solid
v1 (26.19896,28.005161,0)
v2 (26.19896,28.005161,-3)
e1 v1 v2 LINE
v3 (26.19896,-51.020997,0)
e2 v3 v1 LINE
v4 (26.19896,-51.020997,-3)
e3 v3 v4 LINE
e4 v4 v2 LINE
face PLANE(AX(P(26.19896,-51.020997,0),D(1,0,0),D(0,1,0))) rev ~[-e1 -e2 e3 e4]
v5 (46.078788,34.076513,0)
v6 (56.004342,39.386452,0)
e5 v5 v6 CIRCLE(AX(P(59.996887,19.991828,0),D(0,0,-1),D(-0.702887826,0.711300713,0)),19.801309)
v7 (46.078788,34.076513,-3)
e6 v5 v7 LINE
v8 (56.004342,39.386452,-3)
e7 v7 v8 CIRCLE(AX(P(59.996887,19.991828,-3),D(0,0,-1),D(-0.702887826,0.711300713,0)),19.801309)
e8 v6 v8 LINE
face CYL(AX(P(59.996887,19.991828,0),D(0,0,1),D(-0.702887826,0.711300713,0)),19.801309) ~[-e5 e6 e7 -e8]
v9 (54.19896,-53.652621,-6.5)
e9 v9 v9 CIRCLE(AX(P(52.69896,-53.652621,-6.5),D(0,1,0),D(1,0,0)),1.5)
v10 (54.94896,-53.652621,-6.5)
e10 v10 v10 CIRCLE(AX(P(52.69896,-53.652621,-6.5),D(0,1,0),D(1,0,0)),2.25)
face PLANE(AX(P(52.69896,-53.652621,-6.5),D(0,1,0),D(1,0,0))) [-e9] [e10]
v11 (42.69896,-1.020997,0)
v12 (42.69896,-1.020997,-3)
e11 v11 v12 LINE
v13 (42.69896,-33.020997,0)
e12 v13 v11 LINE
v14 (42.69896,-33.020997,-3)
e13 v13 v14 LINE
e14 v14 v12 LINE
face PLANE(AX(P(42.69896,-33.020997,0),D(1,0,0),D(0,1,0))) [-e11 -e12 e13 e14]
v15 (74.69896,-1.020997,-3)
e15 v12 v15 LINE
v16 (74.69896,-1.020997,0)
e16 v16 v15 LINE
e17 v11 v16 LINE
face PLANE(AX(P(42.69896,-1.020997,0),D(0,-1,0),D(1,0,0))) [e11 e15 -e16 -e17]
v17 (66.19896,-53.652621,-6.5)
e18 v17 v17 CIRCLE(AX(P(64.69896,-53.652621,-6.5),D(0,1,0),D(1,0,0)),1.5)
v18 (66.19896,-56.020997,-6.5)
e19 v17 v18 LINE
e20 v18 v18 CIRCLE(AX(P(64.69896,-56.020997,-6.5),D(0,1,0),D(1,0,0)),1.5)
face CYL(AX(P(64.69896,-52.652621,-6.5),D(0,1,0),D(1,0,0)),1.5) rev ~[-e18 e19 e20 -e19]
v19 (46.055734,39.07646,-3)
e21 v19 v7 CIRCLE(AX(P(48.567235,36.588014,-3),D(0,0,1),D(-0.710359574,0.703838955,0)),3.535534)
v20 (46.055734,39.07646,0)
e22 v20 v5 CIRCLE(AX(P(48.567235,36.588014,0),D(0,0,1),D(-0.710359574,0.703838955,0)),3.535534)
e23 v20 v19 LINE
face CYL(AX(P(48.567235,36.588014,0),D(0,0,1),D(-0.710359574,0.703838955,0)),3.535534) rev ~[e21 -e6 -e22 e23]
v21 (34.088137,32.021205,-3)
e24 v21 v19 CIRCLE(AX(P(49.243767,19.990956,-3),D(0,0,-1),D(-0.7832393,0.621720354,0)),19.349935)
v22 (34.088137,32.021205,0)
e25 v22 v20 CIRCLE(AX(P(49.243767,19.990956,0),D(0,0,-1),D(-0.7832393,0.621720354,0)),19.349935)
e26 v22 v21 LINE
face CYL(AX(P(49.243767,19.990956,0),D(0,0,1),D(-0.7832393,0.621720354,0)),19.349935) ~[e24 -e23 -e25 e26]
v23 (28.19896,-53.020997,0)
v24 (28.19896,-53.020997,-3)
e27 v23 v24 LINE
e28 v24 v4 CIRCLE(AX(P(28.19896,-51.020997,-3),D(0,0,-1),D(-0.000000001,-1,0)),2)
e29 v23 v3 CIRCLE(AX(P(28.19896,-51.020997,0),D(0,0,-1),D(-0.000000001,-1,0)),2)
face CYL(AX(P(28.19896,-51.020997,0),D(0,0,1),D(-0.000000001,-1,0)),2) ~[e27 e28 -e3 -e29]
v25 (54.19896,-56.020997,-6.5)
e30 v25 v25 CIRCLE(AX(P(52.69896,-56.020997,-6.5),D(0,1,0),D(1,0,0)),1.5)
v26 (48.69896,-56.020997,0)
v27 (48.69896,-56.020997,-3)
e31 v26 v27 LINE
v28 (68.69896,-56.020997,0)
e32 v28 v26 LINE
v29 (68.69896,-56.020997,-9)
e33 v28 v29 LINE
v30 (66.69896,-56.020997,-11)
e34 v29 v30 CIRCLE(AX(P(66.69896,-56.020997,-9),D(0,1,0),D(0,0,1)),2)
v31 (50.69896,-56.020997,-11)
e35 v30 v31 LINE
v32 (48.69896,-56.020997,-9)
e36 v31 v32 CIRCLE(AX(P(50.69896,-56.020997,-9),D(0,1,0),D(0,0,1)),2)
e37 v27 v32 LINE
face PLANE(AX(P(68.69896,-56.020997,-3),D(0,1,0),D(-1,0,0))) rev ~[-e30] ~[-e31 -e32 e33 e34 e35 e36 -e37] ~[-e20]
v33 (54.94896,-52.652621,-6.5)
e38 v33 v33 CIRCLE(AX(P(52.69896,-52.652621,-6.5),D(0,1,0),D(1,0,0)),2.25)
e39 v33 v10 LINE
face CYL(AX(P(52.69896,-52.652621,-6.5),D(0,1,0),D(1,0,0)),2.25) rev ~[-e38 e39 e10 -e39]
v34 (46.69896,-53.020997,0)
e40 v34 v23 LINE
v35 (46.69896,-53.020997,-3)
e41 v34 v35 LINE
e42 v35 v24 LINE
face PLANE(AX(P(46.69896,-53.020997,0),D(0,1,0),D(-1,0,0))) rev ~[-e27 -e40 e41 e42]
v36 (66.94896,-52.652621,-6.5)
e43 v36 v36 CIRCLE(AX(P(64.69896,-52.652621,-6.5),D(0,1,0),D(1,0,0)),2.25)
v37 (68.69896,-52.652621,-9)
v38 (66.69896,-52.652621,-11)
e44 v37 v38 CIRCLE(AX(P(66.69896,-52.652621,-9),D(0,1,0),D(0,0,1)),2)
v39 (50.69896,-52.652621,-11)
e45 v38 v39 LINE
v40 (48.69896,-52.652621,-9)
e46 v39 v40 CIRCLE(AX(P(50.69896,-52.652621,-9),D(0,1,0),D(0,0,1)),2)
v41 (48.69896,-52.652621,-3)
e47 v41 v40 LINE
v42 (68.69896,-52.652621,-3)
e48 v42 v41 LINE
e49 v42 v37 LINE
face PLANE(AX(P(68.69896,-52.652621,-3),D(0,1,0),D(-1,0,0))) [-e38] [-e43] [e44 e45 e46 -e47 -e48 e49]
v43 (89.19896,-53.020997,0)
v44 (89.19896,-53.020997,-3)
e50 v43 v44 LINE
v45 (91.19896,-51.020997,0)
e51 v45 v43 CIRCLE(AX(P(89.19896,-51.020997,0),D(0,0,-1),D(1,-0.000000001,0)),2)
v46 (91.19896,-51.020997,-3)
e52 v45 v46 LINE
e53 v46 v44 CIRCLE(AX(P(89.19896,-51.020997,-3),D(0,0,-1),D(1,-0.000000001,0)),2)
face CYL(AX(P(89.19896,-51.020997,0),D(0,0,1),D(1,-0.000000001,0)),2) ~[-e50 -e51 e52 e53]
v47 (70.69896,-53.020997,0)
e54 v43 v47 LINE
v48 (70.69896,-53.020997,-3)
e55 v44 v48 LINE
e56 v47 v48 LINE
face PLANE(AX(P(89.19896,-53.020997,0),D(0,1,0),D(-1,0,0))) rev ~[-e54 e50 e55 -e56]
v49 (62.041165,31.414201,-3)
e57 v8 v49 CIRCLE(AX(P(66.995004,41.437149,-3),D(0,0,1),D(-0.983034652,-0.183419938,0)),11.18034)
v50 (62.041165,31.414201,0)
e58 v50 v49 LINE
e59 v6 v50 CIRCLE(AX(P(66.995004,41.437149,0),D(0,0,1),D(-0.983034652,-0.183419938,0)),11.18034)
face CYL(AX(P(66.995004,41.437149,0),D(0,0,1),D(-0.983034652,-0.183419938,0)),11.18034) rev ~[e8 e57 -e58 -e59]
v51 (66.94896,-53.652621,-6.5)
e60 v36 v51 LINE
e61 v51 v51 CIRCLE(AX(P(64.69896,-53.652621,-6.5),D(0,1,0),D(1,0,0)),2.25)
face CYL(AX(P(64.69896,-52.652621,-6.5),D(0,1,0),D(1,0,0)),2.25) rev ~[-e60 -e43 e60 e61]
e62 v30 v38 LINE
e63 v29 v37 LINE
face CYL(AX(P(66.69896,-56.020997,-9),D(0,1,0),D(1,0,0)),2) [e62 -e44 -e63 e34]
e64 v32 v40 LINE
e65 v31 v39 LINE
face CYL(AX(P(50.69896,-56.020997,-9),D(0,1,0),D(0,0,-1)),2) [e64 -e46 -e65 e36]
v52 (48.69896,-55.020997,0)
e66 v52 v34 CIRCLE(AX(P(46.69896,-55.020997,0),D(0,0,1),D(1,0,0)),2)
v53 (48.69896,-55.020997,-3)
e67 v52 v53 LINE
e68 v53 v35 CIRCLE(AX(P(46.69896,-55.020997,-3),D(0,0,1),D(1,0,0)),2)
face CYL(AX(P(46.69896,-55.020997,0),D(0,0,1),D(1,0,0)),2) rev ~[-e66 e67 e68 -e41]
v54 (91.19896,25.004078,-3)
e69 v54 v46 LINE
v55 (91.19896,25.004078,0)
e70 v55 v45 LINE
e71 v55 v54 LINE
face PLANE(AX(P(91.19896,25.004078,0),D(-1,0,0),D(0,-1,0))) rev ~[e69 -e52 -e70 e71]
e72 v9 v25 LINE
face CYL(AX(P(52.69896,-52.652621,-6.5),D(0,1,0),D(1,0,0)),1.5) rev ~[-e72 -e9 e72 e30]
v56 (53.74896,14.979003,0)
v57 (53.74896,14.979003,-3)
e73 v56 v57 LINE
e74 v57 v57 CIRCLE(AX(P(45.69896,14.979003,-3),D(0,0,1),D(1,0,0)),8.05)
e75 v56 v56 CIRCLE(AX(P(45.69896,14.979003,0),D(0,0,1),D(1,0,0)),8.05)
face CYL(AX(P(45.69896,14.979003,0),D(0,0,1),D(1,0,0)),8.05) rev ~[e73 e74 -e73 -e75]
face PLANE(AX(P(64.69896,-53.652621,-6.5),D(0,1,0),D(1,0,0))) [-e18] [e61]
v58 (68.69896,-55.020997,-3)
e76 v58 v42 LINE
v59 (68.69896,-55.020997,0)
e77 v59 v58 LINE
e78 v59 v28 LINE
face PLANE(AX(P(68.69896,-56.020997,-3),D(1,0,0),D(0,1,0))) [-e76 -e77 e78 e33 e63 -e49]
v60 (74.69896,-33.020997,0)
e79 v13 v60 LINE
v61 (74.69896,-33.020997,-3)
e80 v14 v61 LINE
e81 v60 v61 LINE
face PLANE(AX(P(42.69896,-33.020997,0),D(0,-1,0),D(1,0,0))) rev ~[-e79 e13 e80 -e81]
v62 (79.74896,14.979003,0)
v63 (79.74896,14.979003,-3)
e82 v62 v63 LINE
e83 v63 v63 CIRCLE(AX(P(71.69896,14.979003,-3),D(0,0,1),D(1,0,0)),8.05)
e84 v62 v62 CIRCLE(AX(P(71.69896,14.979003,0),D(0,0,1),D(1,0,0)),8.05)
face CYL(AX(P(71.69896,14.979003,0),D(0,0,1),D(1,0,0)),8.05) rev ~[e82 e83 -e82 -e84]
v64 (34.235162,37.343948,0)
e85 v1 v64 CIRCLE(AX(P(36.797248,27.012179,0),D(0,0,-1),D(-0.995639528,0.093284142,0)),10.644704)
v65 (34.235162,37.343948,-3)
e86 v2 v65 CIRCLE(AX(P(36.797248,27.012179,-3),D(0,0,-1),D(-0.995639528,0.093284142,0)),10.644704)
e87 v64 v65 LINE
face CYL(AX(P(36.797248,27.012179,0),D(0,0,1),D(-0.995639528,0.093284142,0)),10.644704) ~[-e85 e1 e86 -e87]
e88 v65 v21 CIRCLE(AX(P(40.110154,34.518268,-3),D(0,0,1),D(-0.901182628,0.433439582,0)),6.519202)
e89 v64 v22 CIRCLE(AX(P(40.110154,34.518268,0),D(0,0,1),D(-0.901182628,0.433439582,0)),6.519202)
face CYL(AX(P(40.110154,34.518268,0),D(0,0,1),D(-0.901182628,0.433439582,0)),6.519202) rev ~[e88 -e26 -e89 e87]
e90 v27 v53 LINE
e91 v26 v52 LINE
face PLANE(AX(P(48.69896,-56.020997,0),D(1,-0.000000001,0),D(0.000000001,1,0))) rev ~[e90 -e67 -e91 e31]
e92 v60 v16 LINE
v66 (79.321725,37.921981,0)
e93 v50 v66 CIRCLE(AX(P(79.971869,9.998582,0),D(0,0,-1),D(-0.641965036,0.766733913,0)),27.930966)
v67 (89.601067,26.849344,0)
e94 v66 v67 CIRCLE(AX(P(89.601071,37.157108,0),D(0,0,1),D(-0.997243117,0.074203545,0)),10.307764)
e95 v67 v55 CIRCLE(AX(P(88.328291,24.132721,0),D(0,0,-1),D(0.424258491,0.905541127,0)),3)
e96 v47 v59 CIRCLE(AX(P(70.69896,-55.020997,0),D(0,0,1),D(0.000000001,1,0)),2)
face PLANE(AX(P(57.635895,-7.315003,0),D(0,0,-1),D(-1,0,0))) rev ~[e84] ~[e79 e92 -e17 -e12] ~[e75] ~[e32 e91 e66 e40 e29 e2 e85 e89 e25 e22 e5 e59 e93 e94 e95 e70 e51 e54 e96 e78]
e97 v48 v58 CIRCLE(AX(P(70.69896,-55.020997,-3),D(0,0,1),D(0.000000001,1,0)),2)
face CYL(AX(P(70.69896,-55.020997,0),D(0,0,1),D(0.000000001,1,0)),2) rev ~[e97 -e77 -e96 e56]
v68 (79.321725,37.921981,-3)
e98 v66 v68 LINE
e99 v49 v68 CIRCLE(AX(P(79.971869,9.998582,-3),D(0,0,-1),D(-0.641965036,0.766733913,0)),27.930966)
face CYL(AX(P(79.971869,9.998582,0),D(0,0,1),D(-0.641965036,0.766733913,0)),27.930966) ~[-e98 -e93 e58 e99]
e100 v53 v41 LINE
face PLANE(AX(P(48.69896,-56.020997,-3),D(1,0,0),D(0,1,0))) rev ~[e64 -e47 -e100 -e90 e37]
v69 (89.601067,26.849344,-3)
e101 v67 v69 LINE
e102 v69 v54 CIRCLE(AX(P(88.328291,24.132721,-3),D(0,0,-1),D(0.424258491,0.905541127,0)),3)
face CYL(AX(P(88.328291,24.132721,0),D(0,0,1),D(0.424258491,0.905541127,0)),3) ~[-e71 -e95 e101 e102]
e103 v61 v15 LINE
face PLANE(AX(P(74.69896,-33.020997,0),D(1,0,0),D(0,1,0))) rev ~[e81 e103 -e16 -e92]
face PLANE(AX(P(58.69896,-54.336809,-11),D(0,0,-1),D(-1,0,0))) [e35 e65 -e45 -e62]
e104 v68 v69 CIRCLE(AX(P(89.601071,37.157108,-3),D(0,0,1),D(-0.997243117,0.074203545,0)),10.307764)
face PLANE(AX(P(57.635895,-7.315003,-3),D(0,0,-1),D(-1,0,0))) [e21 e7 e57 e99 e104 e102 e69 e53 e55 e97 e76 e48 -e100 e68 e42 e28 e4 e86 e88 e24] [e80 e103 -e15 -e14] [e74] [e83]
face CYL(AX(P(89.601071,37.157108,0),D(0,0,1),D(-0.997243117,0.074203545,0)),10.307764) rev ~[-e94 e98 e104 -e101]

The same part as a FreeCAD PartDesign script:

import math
import FreeCAD as App
import Part
import Sketcher

V = App.Vector


def edges_at(feature, points):
    """Names of the edges that pass closest to the given points."""
    edges = feature.Shape.Edges
    near = lambda p: min(range(len(edges)), key=lambda i: edges[i].distToShape(Part.Vertex(*p))[0])
    return sorted({f"Edge{near(p) + 1}" for p in points})


def add_polygon(sketch, points):
    """Adds a closed chain of lines whose ends are joined by coincident constraints."""
    first, n = sketch.GeometryCount, len(points)
    for a, b in zip(points, points[1:] + points[:1]):
        sketch.addGeometry(Part.LineSegment(App.Vector(*a, 0), App.Vector(*b, 0)), False)
    for i in range(n):
        sketch.addConstraint(Sketcher.Constraint("Coincident", first + i, 2, first + (i + 1) % n, 1))

doc = App.newDocument("Part")
params = doc.addObject("Spreadsheet::Sheet", "Params")
for row, (alias, value) in enumerate([
    ("sketch1_radius", "2 mm"),
    ("sketch1_radius2", "3 mm"),
    ("sketch1_diameter", "16.1 mm"),
    ("sketch1_width", "20 mm"),
    ("sketch1_width2", "32 mm"),
    ("pad1_length", "3 mm"),
    ("sketch2_width", "20 mm"),
    ("pad2_length", "8 mm"),
    ("sketch3_diameter", "3 mm"),
    ("pocket1_length", "4 mm"),
    ("fillet_radius", "2 mm"),
    ("sketch4_diameter", "4.5 mm"),
    ("pocket2_length", "1 mm"),
], start=1):
    params.set(f"A{row}", alias)
    params.set(f"B{row}", "=" + value)
    params.setAlias(f"B{row}", alias)

body = doc.addObject("PartDesign::Body", "Body")

# Sketch on XY plane
sketch1 = doc.addObject("Sketcher::SketchObject", "Sketch")
body.addObject(sketch1)
sketch1.AttachmentSupport = (doc.XY_Plane, [""])
sketch1.MapMode = "FlatFace"
sketch1.addGeometry(Part.LineSegment(V(70.69896, -53.020997, 0), V(89.19896, -53.020997, 0)), False)  # 0
sketch1.addGeometry(Part.ArcOfCircle(Part.Circle(V(89.19896, -51.020997, 0), V(0, 0, 1), 2), math.radians(-90), math.radians(0)), False)  # 1
sketch1.addGeometry(Part.LineSegment(V(91.19896, -51.020997, 0), V(91.19896, 25.004078, 0)), False)  # 2
sketch1.addGeometry(Part.ArcOfCircle(Part.Circle(V(88.328291, 24.132721, 0), V(0, 0, 1), 3), math.radians(16.885035), math.radians(64.896263)), False)  # 3
sketch1.addGeometry(Part.ArcOfCircle(Part.Circle(V(89.601071, 37.157108, 0), V(0, 0, 1), 10.307764), math.radians(175.744539), math.radians(269.999973)), False)  # 4
sketch1.addGeometry(Part.ArcOfCircle(Part.Circle(V(79.971869, 9.998582, 0), V(0, 0, 1), 27.930966), math.radians(91.333784), math.radians(129.938504)), False)  # 5
sketch1.addGeometry(Part.ArcOfCircle(Part.Circle(V(66.995004, 41.437149, 0), V(0, 0, 1), 11.18034), math.radians(-169.430975), math.radians(-116.300872)), False)  # 6
sketch1.addGeometry(Part.ArcOfCircle(Part.Circle(V(59.996887, 19.991828, 0), V(0, 0, 1), 19.801309), math.radians(101.632314), math.radians(134.659156)), False)  # 7
sketch1.addGeometry(Part.ArcOfCircle(Part.Circle(V(48.567235, 36.588014, 0), V(0, 0, 1), 3.535534), math.radians(135.264179), math.radians(225.264179)), False)  # 8
sketch1.addGeometry(Part.ArcOfCircle(Part.Circle(V(49.243767, 19.990956, 0), V(0, 0, 1), 19.349935), math.radians(99.483105), math.radians(141.558127)), False)  # 9
sketch1.addGeometry(Part.ArcOfCircle(Part.Circle(V(40.110154, 34.518268, 0), V(0, 0, 1), 6.519202), math.radians(154.313956), math.radians(202.521611)), False)  # 10
sketch1.addGeometry(Part.ArcOfCircle(Part.Circle(V(36.797248, 27.012179, 0), V(0, 0, 1), 10.644704), math.radians(103.927338), math.radians(174.64743)), False)  # 11
sketch1.addGeometry(Part.LineSegment(V(26.19896, 28.005161, 0), V(26.19896, -51.020997, 0)), False)  # 12
sketch1.addGeometry(Part.ArcOfCircle(Part.Circle(V(28.19896, -51.020997, 0), V(0, 0, 1), 2), math.radians(-180), math.radians(-90)), False)  # 13
sketch1.addGeometry(Part.LineSegment(V(28.19896, -53.020997, 0), V(46.69896, -53.020997, 0)), False)  # 14
sketch1.addGeometry(Part.ArcOfCircle(Part.Circle(V(46.69896, -55.020997, 0), V(0, 0, 1), 2), math.radians(0), math.radians(90)), False)  # 15
sketch1.addGeometry(Part.LineSegment(V(48.69896, -55.020997, 0), V(48.69896, -56.020997, 0)), False)  # 16
sketch1.addGeometry(Part.LineSegment(V(48.69896, -56.020997, 0), V(68.69896, -56.020997, 0)), False)  # 17
sketch1.addGeometry(Part.LineSegment(V(68.69896, -56.020997, 0), V(68.69896, -55.020997, 0)), False)  # 18
sketch1.addGeometry(Part.ArcOfCircle(Part.Circle(V(70.69896, -55.020997, 0), V(0, 0, 1), 2), math.radians(90), math.radians(180)), False)  # 19
add_polygon(sketch1, [(42.69896, -33.020997), (42.69896, -1.020997), (74.69896, -1.020997), (74.69896, -33.020997)])  # lines 20-23
sketch1.addGeometry(Part.Circle(V(71.69896, 14.979003, 0), V(0, 0, 1), 8.05), False)  # 24
sketch1.addGeometry(Part.Circle(V(45.69896, 14.979003, 0), V(0, 0, 1), 8.05), False)  # 25
sketch1.addConstraint([
    Sketcher.Constraint("Tangent", 0, 2, 1, 1),
    Sketcher.Constraint("Tangent", 1, 2, 2, 1),
    Sketcher.Constraint("Coincident", 2, 2, 3, 1),
    Sketcher.Constraint("Coincident", 3, 2, 4, 2),
    Sketcher.Constraint("Coincident", 4, 1, 5, 1),
    Sketcher.Constraint("Coincident", 5, 2, 6, 2),
    Sketcher.Constraint("Coincident", 6, 1, 7, 1),
    Sketcher.Constraint("Coincident", 7, 2, 8, 2),
    Sketcher.Constraint("Coincident", 8, 1, 9, 1),
    Sketcher.Constraint("Coincident", 9, 2, 10, 2),
    Sketcher.Constraint("Coincident", 10, 1, 11, 1),
    Sketcher.Constraint("Coincident", 11, 2, 12, 1),
    Sketcher.Constraint("Tangent", 12, 2, 13, 1),
    Sketcher.Constraint("Tangent", 13, 2, 14, 1),
    Sketcher.Constraint("Tangent", 14, 2, 15, 2),
    Sketcher.Constraint("Tangent", 15, 1, 16, 1),
    Sketcher.Constraint("Coincident", 16, 2, 17, 1),
    Sketcher.Constraint("Coincident", 17, 2, 18, 1),
    Sketcher.Constraint("Tangent", 18, 2, 19, 2),
    Sketcher.Constraint("Tangent", 19, 1, 0, 1),
    Sketcher.Constraint("Horizontal", 0),
    Sketcher.Constraint("Vertical", 2),
    Sketcher.Constraint("Vertical", 12),
    Sketcher.Constraint("Horizontal", 14),
    Sketcher.Constraint("Vertical", 16),
    Sketcher.Constraint("Horizontal", 17),
    Sketcher.Constraint("Vertical", 18),
    Sketcher.Constraint("Vertical", 20),
    Sketcher.Constraint("Horizontal", 21),
    Sketcher.Constraint("Vertical", 22),
    Sketcher.Constraint("Horizontal", 23),
    Sketcher.Constraint("Equal", 1, 13),
    Sketcher.Constraint("Equal", 13, 15),
    Sketcher.Constraint("Equal", 15, 19),
    Sketcher.Constraint("Equal", 24, 25),
    Sketcher.Constraint("Horizontal", 1, 3, 13, 3),
    Sketcher.Constraint("Horizontal", 24, 3, 25, 3),
    Sketcher.Constraint("Equal", 0, 14),
    Sketcher.Constraint("Equal", 23, 20),
    Sketcher.Constraint("Radius", 1, 2.0),
    Sketcher.Constraint("Radius", 3, 3.0),
    Sketcher.Constraint("Diameter", 24, 16.1),
    Sketcher.Constraint("DistanceX", 17, 1, 17, 2, 20.0),
    Sketcher.Constraint("DistanceX", 21, 1, 21, 2, 32.0),
    Sketcher.Constraint("DistanceY", 16, 2, 16, 1, 1.0),
    Sketcher.Constraint("DistanceX", 0, 1, 0, 2, 18.5),
    Sketcher.Constraint("DistanceX", 20, 2, 25, 3, 3.0),
    Sketcher.Constraint("DistanceY", 20, 2, 25, 3, 16.0),
    Sketcher.Constraint("DistanceX", 20, 2, 24, 3, 29.0),
    Sketcher.Constraint("DistanceX", 19, 1, 22, 2, 4.0),
    Sketcher.Constraint("DistanceY", 19, 1, 22, 2, 20.0),
    Sketcher.Constraint("Radius", 6, 11.18034),
    Sketcher.Constraint("Radius", 7, 19.801309),
    Sketcher.Constraint("Radius", 4, 10.307764),
    Sketcher.Constraint("Radius", 5, 27.930966),
    Sketcher.Constraint("Radius", 8, 3.535534),
    Sketcher.Constraint("Radius", 9, 19.349935),
    Sketcher.Constraint("Radius", 10, 6.519202),
    Sketcher.Constraint("Radius", 11, 10.644704),
    Sketcher.Constraint("DistanceY", 12, 2, 12, 1, 79.026159),
    Sketcher.Constraint("DistanceY", -1, 1, 5, 2, 31.414201),
    Sketcher.Constraint("DistanceX", 9, 3, 5, 3, 30.728102),
    Sketcher.Constraint("DistanceY", 7, 2, 8, 3, 2.5115),
    Sketcher.Constraint("DistanceX", 8, 1, 8, 3, 2.5115),
    Sketcher.Constraint("DistanceY", 2, 1, 2, 2, 76.025075),
    Sketcher.Constraint("DistanceX", -1, 1, 1, 3, 89.19896),
    Sketcher.Constraint("DistanceX", -1, 1, 3, 3, 88.328291),
    Sketcher.Constraint("DistanceY", -1, 1, 3, 3, 24.132721),
    Sketcher.Constraint("DistanceX", -1, 1, 4, 3, 89.601071),
    Sketcher.Constraint("DistanceY", -1, 1, 4, 3, 37.157108),
    Sketcher.Constraint("DistanceX", -1, 1, 5, 3, 79.971869),
    Sketcher.Constraint("DistanceY", -1, 1, 6, 3, 41.437149),
    Sketcher.Constraint("DistanceY", -1, 1, 7, 3, 19.991828),
    Sketcher.Constraint("DistanceY", -1, 1, 11, 3, 27.012179),
    Sketcher.Constraint("DistanceY", -1, 1, 4, 1, 37.921981),
    Sketcher.Constraint("DistanceY", -1, 1, 6, 1, 39.386452),
    Sketcher.Constraint("DistanceX", -1, 1, 7, 2, 46.078788),
    Sketcher.Constraint("DistanceX", -1, 1, 10, 1, 34.235162),
    Sketcher.Constraint("DistanceX", 10, 3, 8, 3, 8.457081),
])
sketch1.setExpression("Constraints[43]", "Params.sketch1_radius")
sketch1.setExpression("Constraints[44]", "Params.sketch1_radius2")
sketch1.setExpression("Constraints[45]", "Params.sketch1_diameter")
sketch1.setExpression("Constraints[46]", "Params.sketch1_width")
sketch1.setExpression("Constraints[47]", "Params.sketch1_width2")
pad1 = doc.addObject("PartDesign::Pad", "Pad")
body.addObject(pad1)
pad1.Profile = sketch1
pad1.setExpression("Length", "Params.pad1_length")
pad1.Reversed = True

# Sketch on XY plane
sketch2 = doc.addObject("Sketcher::SketchObject", "Sketch001")
body.addObject(sketch2)
sketch2.AttachmentSupport = (doc.XY_Plane, [""])
sketch2.MapMode = "FlatFace"
sketch2.AttachmentOffset = App.Placement(V(0, 0, -3), App.Rotation())
add_polygon(sketch2, [(68.69896, -52.652621), (68.69896, -56.020997), (48.69896, -56.020997), (48.69896, -52.652621)])  # lines 0-3
sketch2.addConstraint([
    Sketcher.Constraint("Vertical", 0),
    Sketcher.Constraint("Horizontal", 1),
    Sketcher.Constraint("Vertical", 2),
    Sketcher.Constraint("Horizontal", 3),
    Sketcher.Constraint("DistanceX", 1, 2, 1, 1, 20.0),
    Sketcher.Constraint("DistanceY", 0, 2, 0, 1, 3.368376),
    Sketcher.Constraint("DistanceX", -1, 1, 0, 2, 68.69896),
    Sketcher.Constraint("DistanceY", 2, 2, -1, 1, 52.652621),
])
sketch2.setExpression("Constraints[8]", "Params.sketch2_width")
pad2 = doc.addObject("PartDesign::Pad", "Pad001")
body.addObject(pad2)
pad2.Profile = sketch2
pad2.setExpression("Length", "Params.pad2_length")
pad2.Reversed = True

# Sketch on XZ plane
sketch3 = doc.addObject("Sketcher::SketchObject", "Sketch002")
body.addObject(sketch3)
sketch3.AttachmentSupport = (doc.XZ_Plane, [""])
sketch3.MapMode = "FlatFace"
sketch3.AttachmentOffset = App.Placement(V(0, 0, 52.652621), App.Rotation())
sketch3.addGeometry([
    Part.Circle(V(64.69896, -6.5, 0), V(0, 0, 1), 1.5),
    Part.Circle(V(52.69896, -6.5, 0), V(0, 0, 1), 1.5),
], False)
sketch3.addConstraint([
    Sketcher.Constraint("Equal", 0, 1),
    Sketcher.Constraint("Horizontal", 0, 3, 1, 3),
    Sketcher.Constraint("Diameter", 0, 3.0),
    Sketcher.Constraint("DistanceX", 1, 3, 0, 3, 12.0),
    Sketcher.Constraint("DistanceY", 0, 3, -1, 1, 6.5),
    Sketcher.Constraint("DistanceX", -1, 1, 0, 3, 64.69896),
])
sketch3.setExpression("Constraints[2]", "Params.sketch3_diameter")
pocket1 = doc.addObject("PartDesign::Pocket", "Pocket")
body.addObject(pocket1)
pocket1.Profile = sketch3
pocket1.setExpression("Length", "Params.pocket1_length")
pocket1.Reversed = True
doc.recompute()

fillet = doc.addObject("PartDesign::Fillet", "Fillet")
body.addObject(fillet)
fillet.Base = (pocket1, edges_at(pocket1, [(48.699, -54.337, -11), (68.699, -54.337, -11)]))
fillet.setExpression("Radius", "Params.fillet_radius")

# Sketch on XZ plane
sketch4 = doc.addObject("Sketcher::SketchObject", "Sketch003")
body.addObject(sketch4)
sketch4.AttachmentSupport = (doc.XZ_Plane, [""])
sketch4.MapMode = "FlatFace"
sketch4.AttachmentOffset = App.Placement(V(0, 0, 52.652621), App.Rotation())
sketch4.addGeometry([
    Part.Circle(V(52.69896, -6.5, 0), V(0, 0, 1), 2.25),
    Part.Circle(V(64.69896, -6.5, 0), V(0, 0, 1), 2.25),
], False)
sketch4.addConstraint([
    Sketcher.Constraint("Equal", 0, 1),
    Sketcher.Constraint("Horizontal", 0, 3, 1, 3),
    Sketcher.Constraint("Diameter", 0, 4.5),
    Sketcher.Constraint("DistanceX", 0, 3, 1, 3, 12.0),
    Sketcher.Constraint("DistanceY", 0, 3, -1, 1, 6.5),
    Sketcher.Constraint("DistanceX", -1, 1, 0, 3, 52.69896),
])
sketch4.setExpression("Constraints[2]", "Params.sketch4_diameter")
pocket2 = doc.addObject("PartDesign::Pocket", "Pocket001")
body.addObject(pocket2)
pocket2.Profile = sketch4
pocket2.setExpression("Length", "Params.pocket2_length")
pocket2.Reversed = True

doc.recompute()
